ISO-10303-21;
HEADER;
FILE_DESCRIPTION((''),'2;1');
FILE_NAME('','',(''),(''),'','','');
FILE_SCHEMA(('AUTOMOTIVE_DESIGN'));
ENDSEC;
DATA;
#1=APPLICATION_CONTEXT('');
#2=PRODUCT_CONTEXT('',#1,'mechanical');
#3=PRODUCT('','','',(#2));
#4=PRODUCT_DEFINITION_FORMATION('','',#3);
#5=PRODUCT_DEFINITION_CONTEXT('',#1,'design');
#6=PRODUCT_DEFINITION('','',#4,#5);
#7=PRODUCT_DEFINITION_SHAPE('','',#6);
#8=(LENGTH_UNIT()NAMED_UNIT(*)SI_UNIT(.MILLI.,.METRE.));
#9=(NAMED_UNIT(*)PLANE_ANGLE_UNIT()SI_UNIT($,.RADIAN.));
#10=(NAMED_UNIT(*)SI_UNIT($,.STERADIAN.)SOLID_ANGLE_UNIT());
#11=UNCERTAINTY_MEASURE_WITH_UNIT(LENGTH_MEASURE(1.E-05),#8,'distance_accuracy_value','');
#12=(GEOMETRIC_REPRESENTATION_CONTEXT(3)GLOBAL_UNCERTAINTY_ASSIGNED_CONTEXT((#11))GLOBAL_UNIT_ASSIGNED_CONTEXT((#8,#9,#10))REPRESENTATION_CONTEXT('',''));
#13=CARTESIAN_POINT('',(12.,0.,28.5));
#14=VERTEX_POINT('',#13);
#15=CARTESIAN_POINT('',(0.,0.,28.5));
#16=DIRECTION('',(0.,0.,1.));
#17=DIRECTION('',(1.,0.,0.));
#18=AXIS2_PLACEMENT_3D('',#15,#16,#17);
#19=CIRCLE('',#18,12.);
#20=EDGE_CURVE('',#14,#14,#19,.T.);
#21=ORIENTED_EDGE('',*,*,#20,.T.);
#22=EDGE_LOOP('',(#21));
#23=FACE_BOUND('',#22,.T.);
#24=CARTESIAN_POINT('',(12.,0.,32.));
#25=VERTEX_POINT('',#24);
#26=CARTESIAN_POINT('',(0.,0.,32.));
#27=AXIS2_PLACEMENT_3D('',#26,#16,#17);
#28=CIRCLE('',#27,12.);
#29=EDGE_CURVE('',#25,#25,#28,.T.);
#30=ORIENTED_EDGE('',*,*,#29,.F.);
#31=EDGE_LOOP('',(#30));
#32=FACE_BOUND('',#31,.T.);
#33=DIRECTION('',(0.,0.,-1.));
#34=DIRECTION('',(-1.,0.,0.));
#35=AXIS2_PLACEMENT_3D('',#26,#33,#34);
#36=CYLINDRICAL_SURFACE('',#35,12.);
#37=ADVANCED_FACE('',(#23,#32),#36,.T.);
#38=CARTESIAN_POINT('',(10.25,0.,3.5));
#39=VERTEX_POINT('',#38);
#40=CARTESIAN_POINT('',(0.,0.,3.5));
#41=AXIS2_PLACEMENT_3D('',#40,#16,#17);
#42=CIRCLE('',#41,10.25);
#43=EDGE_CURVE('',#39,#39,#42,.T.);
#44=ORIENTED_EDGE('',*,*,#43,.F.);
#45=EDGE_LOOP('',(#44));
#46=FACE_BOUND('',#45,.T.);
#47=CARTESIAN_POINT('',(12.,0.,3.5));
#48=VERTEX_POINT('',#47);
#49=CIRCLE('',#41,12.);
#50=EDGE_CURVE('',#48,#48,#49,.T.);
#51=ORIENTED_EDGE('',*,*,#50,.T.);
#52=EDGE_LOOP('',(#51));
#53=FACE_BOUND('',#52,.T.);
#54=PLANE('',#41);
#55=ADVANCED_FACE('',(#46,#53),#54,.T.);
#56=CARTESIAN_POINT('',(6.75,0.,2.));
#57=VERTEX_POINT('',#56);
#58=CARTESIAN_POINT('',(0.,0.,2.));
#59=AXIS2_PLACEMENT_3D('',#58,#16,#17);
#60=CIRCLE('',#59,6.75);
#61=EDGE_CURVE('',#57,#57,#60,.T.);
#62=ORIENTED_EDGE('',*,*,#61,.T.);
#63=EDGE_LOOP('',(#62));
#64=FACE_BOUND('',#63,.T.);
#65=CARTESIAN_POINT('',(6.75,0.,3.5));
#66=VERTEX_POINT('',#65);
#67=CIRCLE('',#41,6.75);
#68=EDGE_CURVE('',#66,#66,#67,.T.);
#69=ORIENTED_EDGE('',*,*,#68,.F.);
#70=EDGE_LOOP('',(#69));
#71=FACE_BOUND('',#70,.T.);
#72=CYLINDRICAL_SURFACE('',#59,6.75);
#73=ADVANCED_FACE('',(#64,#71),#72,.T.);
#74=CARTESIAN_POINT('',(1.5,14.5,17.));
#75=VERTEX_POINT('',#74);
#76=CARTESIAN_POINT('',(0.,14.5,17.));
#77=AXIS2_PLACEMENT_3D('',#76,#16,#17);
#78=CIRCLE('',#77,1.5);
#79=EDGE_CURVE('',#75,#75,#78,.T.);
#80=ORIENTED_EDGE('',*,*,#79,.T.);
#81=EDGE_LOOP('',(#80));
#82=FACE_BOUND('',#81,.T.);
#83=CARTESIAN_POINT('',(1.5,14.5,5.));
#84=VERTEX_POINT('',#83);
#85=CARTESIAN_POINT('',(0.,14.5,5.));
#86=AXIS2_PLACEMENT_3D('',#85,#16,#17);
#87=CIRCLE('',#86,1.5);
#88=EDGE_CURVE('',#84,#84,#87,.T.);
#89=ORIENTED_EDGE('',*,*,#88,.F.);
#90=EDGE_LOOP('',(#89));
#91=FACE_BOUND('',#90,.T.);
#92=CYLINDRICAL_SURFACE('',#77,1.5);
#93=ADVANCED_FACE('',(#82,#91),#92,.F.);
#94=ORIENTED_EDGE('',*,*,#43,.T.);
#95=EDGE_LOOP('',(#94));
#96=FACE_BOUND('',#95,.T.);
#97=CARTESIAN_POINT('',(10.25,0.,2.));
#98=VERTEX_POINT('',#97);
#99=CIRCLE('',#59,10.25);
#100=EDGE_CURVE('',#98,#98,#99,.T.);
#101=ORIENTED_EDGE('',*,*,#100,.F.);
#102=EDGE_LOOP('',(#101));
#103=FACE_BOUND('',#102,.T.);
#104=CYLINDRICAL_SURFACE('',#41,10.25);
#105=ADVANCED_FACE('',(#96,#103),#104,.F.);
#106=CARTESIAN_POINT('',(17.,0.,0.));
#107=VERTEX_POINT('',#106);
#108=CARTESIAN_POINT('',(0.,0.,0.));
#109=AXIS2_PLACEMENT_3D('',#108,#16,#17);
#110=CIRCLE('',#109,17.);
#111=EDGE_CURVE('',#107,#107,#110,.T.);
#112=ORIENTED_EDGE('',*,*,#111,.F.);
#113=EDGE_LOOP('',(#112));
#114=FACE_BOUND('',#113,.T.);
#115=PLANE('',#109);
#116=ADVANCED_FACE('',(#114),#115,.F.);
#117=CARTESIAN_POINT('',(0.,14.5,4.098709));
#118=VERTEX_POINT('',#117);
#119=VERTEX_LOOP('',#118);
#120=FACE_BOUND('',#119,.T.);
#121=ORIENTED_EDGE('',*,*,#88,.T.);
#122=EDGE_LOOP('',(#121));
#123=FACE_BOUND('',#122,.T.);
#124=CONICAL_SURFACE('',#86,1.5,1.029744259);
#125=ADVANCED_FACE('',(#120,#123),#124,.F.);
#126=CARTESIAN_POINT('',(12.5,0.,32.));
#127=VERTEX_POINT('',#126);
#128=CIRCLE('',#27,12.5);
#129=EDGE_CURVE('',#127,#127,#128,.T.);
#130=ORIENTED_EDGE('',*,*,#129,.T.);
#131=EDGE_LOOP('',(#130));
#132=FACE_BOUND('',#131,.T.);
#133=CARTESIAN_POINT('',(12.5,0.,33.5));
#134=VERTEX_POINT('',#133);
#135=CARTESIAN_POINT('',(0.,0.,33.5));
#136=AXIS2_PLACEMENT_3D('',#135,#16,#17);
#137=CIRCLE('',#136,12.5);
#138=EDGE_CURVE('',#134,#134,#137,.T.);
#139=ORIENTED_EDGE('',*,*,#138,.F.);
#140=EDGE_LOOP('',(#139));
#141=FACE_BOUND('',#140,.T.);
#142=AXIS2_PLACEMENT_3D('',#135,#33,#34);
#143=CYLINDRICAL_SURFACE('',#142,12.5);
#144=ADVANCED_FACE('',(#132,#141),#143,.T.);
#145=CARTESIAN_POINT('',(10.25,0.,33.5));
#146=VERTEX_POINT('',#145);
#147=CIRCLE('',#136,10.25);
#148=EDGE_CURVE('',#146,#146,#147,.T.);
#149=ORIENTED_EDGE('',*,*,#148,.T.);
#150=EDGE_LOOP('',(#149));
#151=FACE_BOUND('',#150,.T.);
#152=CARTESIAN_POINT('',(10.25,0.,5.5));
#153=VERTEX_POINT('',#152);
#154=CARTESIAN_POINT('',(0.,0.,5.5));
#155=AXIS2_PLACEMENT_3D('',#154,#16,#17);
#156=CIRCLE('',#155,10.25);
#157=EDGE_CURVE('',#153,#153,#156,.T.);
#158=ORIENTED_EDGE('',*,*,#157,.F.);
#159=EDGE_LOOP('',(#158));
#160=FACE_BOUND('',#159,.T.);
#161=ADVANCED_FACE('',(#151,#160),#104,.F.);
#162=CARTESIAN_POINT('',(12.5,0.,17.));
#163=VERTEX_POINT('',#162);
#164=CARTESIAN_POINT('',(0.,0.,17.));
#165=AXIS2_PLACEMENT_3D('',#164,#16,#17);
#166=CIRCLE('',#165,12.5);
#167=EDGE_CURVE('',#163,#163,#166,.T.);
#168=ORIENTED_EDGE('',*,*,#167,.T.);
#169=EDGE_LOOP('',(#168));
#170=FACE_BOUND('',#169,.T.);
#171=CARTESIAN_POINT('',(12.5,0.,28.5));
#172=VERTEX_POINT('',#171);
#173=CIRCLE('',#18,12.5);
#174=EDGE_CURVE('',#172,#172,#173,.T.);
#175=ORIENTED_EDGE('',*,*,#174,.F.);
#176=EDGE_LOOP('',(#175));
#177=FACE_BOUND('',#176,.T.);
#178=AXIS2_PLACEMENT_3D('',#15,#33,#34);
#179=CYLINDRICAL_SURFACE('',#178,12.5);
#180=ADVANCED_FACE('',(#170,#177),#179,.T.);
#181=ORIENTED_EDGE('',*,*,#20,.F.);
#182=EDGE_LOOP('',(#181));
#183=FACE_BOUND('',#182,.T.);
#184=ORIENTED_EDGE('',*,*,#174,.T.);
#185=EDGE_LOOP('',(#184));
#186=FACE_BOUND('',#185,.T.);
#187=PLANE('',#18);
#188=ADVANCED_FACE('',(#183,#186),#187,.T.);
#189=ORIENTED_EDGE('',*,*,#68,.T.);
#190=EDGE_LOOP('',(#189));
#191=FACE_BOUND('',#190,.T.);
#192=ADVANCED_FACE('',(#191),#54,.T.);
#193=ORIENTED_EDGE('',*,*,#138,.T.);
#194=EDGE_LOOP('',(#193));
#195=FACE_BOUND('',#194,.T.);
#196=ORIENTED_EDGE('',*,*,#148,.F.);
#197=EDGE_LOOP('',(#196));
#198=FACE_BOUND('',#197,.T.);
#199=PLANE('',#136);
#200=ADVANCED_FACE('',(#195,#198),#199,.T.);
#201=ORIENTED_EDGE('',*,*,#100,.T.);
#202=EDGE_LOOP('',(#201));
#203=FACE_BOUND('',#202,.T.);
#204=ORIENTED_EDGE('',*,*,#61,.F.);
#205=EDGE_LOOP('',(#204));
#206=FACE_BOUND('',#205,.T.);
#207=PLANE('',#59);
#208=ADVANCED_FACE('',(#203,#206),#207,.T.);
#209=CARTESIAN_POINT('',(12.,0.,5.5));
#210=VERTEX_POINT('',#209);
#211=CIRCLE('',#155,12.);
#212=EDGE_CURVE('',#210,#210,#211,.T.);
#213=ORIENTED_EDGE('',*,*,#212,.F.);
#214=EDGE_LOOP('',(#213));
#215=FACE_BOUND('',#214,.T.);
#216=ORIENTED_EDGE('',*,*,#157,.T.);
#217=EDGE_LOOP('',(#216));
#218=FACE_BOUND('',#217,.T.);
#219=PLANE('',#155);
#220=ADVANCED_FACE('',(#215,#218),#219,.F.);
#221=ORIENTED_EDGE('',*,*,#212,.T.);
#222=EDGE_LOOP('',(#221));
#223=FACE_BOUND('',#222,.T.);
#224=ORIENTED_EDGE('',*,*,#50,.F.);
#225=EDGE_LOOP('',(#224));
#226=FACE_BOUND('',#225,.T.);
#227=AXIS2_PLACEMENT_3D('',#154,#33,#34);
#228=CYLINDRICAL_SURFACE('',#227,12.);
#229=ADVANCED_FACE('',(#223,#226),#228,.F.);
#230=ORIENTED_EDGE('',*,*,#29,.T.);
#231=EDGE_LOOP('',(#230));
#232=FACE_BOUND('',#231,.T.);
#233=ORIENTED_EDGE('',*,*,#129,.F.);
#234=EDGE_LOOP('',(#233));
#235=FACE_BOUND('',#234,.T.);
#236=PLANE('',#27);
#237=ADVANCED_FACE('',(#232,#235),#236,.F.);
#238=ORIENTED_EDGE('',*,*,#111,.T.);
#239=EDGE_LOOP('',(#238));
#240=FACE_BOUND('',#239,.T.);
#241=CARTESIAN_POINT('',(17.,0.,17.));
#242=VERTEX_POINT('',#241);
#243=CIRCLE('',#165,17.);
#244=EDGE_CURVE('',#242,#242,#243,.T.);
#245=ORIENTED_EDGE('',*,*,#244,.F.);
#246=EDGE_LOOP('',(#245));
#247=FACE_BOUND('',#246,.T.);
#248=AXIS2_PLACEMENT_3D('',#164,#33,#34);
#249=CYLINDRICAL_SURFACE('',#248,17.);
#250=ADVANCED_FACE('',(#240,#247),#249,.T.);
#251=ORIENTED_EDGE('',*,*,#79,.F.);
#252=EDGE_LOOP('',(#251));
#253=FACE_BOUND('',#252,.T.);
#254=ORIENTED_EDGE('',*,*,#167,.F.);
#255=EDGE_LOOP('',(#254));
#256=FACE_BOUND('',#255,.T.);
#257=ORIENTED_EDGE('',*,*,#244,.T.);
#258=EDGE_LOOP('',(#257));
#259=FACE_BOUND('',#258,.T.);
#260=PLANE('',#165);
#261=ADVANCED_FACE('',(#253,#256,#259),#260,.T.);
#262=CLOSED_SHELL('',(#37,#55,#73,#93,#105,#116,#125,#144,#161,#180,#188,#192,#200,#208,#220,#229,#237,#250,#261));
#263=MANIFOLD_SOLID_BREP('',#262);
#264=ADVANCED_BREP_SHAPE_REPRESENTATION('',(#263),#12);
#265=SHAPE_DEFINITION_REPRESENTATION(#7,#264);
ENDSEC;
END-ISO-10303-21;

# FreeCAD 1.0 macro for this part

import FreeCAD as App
import Part
import Sketcher
from FreeCAD import Vector
Q = App.Units.Quantity

doc = App.newDocument("Part")
params = doc.addObject("Spreadsheet::Sheet", "Params")
for row, (alias, value) in enumerate([
    ("sketch1_diameter", "34 mm"),
    ("pad1_length", "17 mm"),
    ("sketch2_diameter", "25 mm"),
    ("pad2_length", "11.5 mm"),
    ("sketch3_diameter", "24 mm"),
    ("pad3_length", "3.5 mm"),
    ("sketch4_diameter", "25 mm"),
    ("pad4_length", "1.5 mm"),
    ("sketch5_diameter", "20.5 mm"),
    ("pocket1_length", "30 mm"),
    ("sketch6_diameter", "20.5 mm"),
    ("sketch6_diameter2", "13.5 mm"),
    ("pocket2_length", "1.5 mm"),
    ("sketch7_diameter", "24 mm"),
    ("sketch7_diameter2", "20.5 mm"),
    ("pocket3_length", "2 mm"),
    ("sketch8_diameter", "3 mm"),
    ("hole_diameter", "3 mm"),
    ("hole_depth", "12 mm"),
], start=1):
    params.set(f"A{row}", alias)
    params.set(f"B{row}", "=" + value)
    params.setAlias(f"B{row}", alias)

body = doc.addObject("PartDesign::Body", "Body")

sketch1 = body.newObject("Sketcher::SketchObject", "Sketch")
sketch1.AttachmentSupport = (doc.getObject("XY_Plane"), [""])
sketch1.MapMode = "FlatFace"
sketch1.addGeometry(Part.Circle(Vector(0, 0, 0), Vector(0, 0, 1), 17), False)
sketch1.addConstraint(Sketcher.Constraint("Coincident", 0, 3, -1, 1))
sketch1.addConstraint(Sketcher.Constraint("Diameter", 0, Q("34 mm")))
sketch1.setExpression("Constraints[1]", "Params.sketch1_diameter")
pad1 = body.newObject("PartDesign::Pad", "Pad")
pad1.Profile = sketch1
pad1.setExpression("Length", "Params.pad1_length")

sketch2 = body.newObject("Sketcher::SketchObject", "Sketch001")
sketch2.AttachmentSupport = (doc.getObject("XY_Plane"), [""])
sketch2.MapMode = "FlatFace"
sketch2.AttachmentOffset = App.Placement(Vector(0, 0, 17), App.Rotation())
sketch2.addGeometry(Part.Circle(Vector(0, 0, 0), Vector(0, 0, 1), 12), False)
sketch2.addConstraint(Sketcher.Constraint("Coincident", 0, 3, -1, 1))
sketch2.addConstraint(Sketcher.Constraint("Diameter", 0, Q("25 mm")))
sketch2.setExpression("Constraints[1]", "Params.sketch2_diameter")
pad2 = body.newObject("PartDesign::Pad", "Pad001")
pad2.Profile = sketch2
pad2.setExpression("Length", "Params.pad2_length")

sketch3 = body.newObject("Sketcher::SketchObject", "Sketch002")
sketch3.AttachmentSupport = (doc.getObject("XY_Plane"), [""])
sketch3.MapMode = "FlatFace"
sketch3.AttachmentOffset = App.Placement(Vector(0, 0, 28.5), App.Rotation())
sketch3.addGeometry(Part.Circle(Vector(0, 0, 0), Vector(0, 0, 1), 12), False)
sketch3.addConstraint(Sketcher.Constraint("Coincident", 0, 3, -1, 1))
sketch3.addConstraint(Sketcher.Constraint("Diameter", 0, Q("24 mm")))
sketch3.setExpression("Constraints[1]", "Params.sketch3_diameter")
pad3 = body.newObject("PartDesign::Pad", "Pad002")
pad3.Profile = sketch3
pad3.setExpression("Length", "Params.pad3_length")

sketch4 = body.newObject("Sketcher::SketchObject", "Sketch003")
sketch4.AttachmentSupport = (doc.getObject("XY_Plane"), [""])
sketch4.MapMode = "FlatFace"
sketch4.AttachmentOffset = App.Placement(Vector(0, 0, 32), App.Rotation())
sketch4.addGeometry(Part.Circle(Vector(0, 0, 0), Vector(0, 0, 1), 12), False)
sketch4.addConstraint(Sketcher.Constraint("Coincident", 0, 3, -1, 1))
sketch4.addConstraint(Sketcher.Constraint("Diameter", 0, Q("25 mm")))
sketch4.setExpression("Constraints[1]", "Params.sketch4_diameter")
pad4 = body.newObject("PartDesign::Pad", "Pad003")
pad4.Profile = sketch4
pad4.setExpression("Length", "Params.pad4_length")

sketch5 = body.newObject("Sketcher::SketchObject", "Sketch004")
sketch5.AttachmentSupport = (doc.getObject("XY_Plane"), [""])
sketch5.MapMode = "FlatFace"
sketch5.AttachmentOffset = App.Placement(Vector(0, 0, 33.5), App.Rotation())
sketch5.addGeometry(Part.Circle(Vector(0, 0, 0), Vector(0, 0, 1), 10), False)
sketch5.addConstraint(Sketcher.Constraint("Coincident", 0, 3, -1, 1))
sketch5.addConstraint(Sketcher.Constraint("Diameter", 0, Q("20.5 mm")))
sketch5.setExpression("Constraints[1]", "Params.sketch5_diameter")
pocket1 = body.newObject("PartDesign::Pocket", "Pocket")
pocket1.Profile = sketch5
pocket1.setExpression("Length", "Params.pocket1_length")

sketch6 = body.newObject("Sketcher::SketchObject", "Sketch005")
sketch6.AttachmentSupport = (doc.getObject("XY_Plane"), [""])
sketch6.MapMode = "FlatFace"
sketch6.AttachmentOffset = App.Placement(Vector(0, 0, 3.5), App.Rotation())
sketch6.addGeometry(Part.Circle(Vector(0, 0, 0), Vector(0, 0, 1), 10), False)
sketch6.addGeometry(Part.Circle(Vector(0, 0, 0), Vector(0, 0, 1), 7), False)
sketch6.addConstraint(Sketcher.Constraint("Coincident", 0, 3, -1, 1))
sketch6.addConstraint(Sketcher.Constraint("Coincident", 1, 3, -1, 1))
sketch6.addConstraint(Sketcher.Constraint("Diameter", 0, Q("20.5 mm")))
sketch6.addConstraint(Sketcher.Constraint("Diameter", 1, Q("13.5 mm")))
sketch6.setExpression("Constraints[2]", "Params.sketch6_diameter")
sketch6.setExpression("Constraints[3]", "Params.sketch6_diameter2")
pocket2 = body.newObject("PartDesign::Pocket", "Pocket001")
pocket2.Profile = sketch6
pocket2.setExpression("Length", "Params.pocket2_length")

sketch7 = body.newObject("Sketcher::SketchObject", "Sketch006")
sketch7.AttachmentSupport = (doc.getObject("XY_Plane"), [""])
sketch7.MapMode = "FlatFace"
sketch7.AttachmentOffset = App.Placement(Vector(0, 0, 3.5), App.Rotation())
sketch7.addGeometry(Part.Circle(Vector(0, 0, 0), Vector(0, 0, 1), 12), False)
sketch7.addGeometry(Part.Circle(Vector(0, 0, 0), Vector(0, 0, 1), 10), False)
sketch7.addConstraint(Sketcher.Constraint("Coincident", 0, 3, -1, 1))
sketch7.addConstraint(Sketcher.Constraint("Coincident", 1, 3, -1, 1))
sketch7.addConstraint(Sketcher.Constraint("Diameter", 0, Q("24 mm")))
sketch7.addConstraint(Sketcher.Constraint("Diameter", 1, Q("20.5 mm")))
sketch7.setExpression("Constraints[2]", "Params.sketch7_diameter")
sketch7.setExpression("Constraints[3]", "Params.sketch7_diameter2")
pocket3 = body.newObject("PartDesign::Pocket", "Pocket002")
pocket3.Profile = sketch7
pocket3.setExpression("Length", "Params.pocket3_length")
pocket3.Reversed = True

sketch8 = body.newObject("Sketcher::SketchObject", "Sketch007")
sketch8.AttachmentSupport = (doc.getObject("XY_Plane"), [""])
sketch8.MapMode = "FlatFace"
sketch8.AttachmentOffset = App.Placement(Vector(0, 0, 17), App.Rotation())
sketch8.addGeometry(Part.Circle(Vector(0, 14.5, 0), Vector(0, 0, 1), 1.5), False)
sketch8.addConstraint(Sketcher.Constraint("PointOnObject", 0, 3, -2))
sketch8.addConstraint(Sketcher.Constraint("Diameter", 0, Q("3 mm")))
sketch8.addConstraint(Sketcher.Constraint("DistanceY", -1, 1, 0, 3, Q("14.5 mm")))
sketch8.setExpression("Constraints[1]", "Params.sketch8_diameter")
doc.recompute()
hole = body.newObject("PartDesign::Hole", "Hole")
hole.Profile = sketch8
hole.ThreadType = "None"
hole.setExpression("Diameter", "Params.hole_diameter")
hole.DepthType = "Dimension"
hole.setExpression("Depth", "Params.hole_depth")
hole.DrillPoint = "Angled"
hole.DrillPointAngle = 118

doc.recompute()
